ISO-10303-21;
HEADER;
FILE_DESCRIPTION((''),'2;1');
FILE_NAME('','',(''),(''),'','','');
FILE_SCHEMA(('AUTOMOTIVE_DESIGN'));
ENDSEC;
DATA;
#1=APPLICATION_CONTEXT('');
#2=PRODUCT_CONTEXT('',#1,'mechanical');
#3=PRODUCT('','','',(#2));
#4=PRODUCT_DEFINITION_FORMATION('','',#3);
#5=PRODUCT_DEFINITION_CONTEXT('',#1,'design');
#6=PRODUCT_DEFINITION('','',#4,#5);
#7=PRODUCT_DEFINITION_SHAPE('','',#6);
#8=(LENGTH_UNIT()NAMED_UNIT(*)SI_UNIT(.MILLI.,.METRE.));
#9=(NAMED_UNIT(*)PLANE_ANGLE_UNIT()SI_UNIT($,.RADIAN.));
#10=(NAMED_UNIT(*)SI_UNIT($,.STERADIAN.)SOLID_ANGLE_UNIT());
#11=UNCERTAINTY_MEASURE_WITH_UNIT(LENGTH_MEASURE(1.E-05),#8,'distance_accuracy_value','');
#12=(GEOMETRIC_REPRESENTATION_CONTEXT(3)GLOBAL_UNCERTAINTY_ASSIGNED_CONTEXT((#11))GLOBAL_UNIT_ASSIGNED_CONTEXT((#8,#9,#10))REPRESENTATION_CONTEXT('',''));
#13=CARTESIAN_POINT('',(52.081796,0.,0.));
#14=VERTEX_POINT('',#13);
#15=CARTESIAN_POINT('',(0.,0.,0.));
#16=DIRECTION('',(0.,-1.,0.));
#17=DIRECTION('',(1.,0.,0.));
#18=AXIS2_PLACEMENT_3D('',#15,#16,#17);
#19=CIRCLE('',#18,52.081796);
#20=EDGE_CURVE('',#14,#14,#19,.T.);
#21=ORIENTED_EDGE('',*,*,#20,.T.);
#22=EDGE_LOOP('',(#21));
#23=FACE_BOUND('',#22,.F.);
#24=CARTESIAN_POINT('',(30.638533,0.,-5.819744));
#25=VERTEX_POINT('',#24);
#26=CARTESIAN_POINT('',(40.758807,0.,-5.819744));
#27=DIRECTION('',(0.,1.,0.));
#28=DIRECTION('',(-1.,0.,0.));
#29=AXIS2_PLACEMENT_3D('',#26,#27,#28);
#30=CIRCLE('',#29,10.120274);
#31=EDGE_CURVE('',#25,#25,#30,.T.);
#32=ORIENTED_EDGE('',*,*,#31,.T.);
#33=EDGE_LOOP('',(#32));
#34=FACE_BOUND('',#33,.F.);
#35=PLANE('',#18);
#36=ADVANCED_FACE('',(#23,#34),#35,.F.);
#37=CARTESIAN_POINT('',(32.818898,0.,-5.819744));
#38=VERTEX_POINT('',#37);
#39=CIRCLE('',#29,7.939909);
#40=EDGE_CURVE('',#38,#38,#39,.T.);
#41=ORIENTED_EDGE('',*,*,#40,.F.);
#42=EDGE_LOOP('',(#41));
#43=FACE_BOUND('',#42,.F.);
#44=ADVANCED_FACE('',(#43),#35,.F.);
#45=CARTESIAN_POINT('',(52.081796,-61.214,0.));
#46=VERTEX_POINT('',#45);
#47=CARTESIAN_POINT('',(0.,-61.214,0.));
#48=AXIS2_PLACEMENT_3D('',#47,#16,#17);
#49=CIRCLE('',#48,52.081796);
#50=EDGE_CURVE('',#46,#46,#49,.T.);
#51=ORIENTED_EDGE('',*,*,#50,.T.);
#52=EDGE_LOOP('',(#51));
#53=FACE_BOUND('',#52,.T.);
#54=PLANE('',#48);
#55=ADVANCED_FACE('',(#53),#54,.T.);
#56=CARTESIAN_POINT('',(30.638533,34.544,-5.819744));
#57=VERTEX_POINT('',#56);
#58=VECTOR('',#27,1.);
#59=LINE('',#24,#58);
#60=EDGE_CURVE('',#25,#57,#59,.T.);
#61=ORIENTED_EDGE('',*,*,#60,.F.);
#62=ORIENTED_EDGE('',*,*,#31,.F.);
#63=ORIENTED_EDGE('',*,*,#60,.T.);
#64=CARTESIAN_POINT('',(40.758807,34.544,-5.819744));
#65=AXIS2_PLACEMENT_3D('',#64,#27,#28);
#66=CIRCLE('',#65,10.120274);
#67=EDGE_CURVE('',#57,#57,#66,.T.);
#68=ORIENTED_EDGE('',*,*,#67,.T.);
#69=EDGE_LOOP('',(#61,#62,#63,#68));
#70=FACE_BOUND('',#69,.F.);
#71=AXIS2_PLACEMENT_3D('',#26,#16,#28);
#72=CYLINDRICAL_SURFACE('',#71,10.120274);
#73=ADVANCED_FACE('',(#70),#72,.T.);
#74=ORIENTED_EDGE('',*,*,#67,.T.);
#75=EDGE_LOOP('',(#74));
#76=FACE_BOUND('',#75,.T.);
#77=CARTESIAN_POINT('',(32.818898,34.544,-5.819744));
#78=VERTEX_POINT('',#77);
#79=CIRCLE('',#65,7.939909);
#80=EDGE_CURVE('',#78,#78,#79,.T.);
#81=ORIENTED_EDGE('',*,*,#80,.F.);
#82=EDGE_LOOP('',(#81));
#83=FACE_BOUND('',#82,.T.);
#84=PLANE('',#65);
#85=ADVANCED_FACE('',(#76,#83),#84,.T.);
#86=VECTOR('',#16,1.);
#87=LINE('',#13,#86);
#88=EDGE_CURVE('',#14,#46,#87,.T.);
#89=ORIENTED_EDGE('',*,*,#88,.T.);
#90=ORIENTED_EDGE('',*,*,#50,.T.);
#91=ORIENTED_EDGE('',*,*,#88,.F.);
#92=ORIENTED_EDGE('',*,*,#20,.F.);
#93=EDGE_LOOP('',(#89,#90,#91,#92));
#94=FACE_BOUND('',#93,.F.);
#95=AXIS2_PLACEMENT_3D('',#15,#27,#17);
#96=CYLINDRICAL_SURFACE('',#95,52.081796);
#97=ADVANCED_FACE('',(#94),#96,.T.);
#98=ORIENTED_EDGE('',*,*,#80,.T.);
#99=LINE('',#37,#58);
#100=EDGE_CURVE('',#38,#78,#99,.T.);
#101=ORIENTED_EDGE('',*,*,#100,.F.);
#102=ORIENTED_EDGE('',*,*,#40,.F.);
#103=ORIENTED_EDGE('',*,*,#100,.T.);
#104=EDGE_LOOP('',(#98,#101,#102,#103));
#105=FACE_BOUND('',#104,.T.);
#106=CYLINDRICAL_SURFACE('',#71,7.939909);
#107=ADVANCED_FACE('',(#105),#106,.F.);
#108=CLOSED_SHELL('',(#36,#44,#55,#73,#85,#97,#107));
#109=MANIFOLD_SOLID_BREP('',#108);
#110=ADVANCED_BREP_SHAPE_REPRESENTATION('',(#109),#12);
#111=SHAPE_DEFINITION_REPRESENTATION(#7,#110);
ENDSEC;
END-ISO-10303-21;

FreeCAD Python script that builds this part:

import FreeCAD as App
import Part
import Sketcher
Q = App.Units.Quantity

doc = App.newDocument("Part")
body = doc.addObject("PartDesign::Body", "Body")

sketch1 = doc.addObject("Sketcher::SketchObject", "Sketch")
body.addObject(sketch1)
sketch1.AttachmentSupport = (doc.XZ_Plane, [""])
sketch1.MapMode = "FlatFace"
sketch1.addGeometry(Part.Circle(App.Vector(0, 0, 0), App.Vector(0, 0, 1), 52), False)
sketch1.addConstraint([
    Sketcher.Constraint("Coincident", 0, 3, -1, 1),
    Sketcher.Constraint("Diameter", 0, 104.163592),
])
pad1 = doc.addObject("PartDesign::Pad", "Pad")
body.addObject(pad1)
pad1.Profile = sketch1
pad1.Length = Q("2.41 in")

sketch2 = doc.addObject("Sketcher::SketchObject", "Sketch001")
body.addObject(sketch2)
sketch2.AttachmentSupport = (doc.XZ_Plane, [""])
sketch2.MapMode = "FlatFace"
sketch2.addGeometry([
    Part.Circle(App.Vector(41, -6, 0), App.Vector(0, 0, 1), 10),
    Part.Circle(App.Vector(41, -6, 0), App.Vector(0, 0, 1), 8),
], False)
sketch2.addConstraint([
    Sketcher.Constraint("Coincident", 1, 3, 0, 3),
    Sketcher.Constraint("Diameter", 0, 20.240548),
    Sketcher.Constraint("Diameter", 1, 15.879818),
    Sketcher.Constraint("DistanceX", -1, 1, 0, 3, 40.758807),
    Sketcher.Constraint("DistanceY", 0, 3, -1, 1, 5.819744),
])
pad2 = doc.addObject("PartDesign::Pad", "Pad001")
body.addObject(pad2)
pad2.Profile = sketch2
pad2.Length = Q("1.36 in")
pad2.Reversed = True

doc.recompute()
